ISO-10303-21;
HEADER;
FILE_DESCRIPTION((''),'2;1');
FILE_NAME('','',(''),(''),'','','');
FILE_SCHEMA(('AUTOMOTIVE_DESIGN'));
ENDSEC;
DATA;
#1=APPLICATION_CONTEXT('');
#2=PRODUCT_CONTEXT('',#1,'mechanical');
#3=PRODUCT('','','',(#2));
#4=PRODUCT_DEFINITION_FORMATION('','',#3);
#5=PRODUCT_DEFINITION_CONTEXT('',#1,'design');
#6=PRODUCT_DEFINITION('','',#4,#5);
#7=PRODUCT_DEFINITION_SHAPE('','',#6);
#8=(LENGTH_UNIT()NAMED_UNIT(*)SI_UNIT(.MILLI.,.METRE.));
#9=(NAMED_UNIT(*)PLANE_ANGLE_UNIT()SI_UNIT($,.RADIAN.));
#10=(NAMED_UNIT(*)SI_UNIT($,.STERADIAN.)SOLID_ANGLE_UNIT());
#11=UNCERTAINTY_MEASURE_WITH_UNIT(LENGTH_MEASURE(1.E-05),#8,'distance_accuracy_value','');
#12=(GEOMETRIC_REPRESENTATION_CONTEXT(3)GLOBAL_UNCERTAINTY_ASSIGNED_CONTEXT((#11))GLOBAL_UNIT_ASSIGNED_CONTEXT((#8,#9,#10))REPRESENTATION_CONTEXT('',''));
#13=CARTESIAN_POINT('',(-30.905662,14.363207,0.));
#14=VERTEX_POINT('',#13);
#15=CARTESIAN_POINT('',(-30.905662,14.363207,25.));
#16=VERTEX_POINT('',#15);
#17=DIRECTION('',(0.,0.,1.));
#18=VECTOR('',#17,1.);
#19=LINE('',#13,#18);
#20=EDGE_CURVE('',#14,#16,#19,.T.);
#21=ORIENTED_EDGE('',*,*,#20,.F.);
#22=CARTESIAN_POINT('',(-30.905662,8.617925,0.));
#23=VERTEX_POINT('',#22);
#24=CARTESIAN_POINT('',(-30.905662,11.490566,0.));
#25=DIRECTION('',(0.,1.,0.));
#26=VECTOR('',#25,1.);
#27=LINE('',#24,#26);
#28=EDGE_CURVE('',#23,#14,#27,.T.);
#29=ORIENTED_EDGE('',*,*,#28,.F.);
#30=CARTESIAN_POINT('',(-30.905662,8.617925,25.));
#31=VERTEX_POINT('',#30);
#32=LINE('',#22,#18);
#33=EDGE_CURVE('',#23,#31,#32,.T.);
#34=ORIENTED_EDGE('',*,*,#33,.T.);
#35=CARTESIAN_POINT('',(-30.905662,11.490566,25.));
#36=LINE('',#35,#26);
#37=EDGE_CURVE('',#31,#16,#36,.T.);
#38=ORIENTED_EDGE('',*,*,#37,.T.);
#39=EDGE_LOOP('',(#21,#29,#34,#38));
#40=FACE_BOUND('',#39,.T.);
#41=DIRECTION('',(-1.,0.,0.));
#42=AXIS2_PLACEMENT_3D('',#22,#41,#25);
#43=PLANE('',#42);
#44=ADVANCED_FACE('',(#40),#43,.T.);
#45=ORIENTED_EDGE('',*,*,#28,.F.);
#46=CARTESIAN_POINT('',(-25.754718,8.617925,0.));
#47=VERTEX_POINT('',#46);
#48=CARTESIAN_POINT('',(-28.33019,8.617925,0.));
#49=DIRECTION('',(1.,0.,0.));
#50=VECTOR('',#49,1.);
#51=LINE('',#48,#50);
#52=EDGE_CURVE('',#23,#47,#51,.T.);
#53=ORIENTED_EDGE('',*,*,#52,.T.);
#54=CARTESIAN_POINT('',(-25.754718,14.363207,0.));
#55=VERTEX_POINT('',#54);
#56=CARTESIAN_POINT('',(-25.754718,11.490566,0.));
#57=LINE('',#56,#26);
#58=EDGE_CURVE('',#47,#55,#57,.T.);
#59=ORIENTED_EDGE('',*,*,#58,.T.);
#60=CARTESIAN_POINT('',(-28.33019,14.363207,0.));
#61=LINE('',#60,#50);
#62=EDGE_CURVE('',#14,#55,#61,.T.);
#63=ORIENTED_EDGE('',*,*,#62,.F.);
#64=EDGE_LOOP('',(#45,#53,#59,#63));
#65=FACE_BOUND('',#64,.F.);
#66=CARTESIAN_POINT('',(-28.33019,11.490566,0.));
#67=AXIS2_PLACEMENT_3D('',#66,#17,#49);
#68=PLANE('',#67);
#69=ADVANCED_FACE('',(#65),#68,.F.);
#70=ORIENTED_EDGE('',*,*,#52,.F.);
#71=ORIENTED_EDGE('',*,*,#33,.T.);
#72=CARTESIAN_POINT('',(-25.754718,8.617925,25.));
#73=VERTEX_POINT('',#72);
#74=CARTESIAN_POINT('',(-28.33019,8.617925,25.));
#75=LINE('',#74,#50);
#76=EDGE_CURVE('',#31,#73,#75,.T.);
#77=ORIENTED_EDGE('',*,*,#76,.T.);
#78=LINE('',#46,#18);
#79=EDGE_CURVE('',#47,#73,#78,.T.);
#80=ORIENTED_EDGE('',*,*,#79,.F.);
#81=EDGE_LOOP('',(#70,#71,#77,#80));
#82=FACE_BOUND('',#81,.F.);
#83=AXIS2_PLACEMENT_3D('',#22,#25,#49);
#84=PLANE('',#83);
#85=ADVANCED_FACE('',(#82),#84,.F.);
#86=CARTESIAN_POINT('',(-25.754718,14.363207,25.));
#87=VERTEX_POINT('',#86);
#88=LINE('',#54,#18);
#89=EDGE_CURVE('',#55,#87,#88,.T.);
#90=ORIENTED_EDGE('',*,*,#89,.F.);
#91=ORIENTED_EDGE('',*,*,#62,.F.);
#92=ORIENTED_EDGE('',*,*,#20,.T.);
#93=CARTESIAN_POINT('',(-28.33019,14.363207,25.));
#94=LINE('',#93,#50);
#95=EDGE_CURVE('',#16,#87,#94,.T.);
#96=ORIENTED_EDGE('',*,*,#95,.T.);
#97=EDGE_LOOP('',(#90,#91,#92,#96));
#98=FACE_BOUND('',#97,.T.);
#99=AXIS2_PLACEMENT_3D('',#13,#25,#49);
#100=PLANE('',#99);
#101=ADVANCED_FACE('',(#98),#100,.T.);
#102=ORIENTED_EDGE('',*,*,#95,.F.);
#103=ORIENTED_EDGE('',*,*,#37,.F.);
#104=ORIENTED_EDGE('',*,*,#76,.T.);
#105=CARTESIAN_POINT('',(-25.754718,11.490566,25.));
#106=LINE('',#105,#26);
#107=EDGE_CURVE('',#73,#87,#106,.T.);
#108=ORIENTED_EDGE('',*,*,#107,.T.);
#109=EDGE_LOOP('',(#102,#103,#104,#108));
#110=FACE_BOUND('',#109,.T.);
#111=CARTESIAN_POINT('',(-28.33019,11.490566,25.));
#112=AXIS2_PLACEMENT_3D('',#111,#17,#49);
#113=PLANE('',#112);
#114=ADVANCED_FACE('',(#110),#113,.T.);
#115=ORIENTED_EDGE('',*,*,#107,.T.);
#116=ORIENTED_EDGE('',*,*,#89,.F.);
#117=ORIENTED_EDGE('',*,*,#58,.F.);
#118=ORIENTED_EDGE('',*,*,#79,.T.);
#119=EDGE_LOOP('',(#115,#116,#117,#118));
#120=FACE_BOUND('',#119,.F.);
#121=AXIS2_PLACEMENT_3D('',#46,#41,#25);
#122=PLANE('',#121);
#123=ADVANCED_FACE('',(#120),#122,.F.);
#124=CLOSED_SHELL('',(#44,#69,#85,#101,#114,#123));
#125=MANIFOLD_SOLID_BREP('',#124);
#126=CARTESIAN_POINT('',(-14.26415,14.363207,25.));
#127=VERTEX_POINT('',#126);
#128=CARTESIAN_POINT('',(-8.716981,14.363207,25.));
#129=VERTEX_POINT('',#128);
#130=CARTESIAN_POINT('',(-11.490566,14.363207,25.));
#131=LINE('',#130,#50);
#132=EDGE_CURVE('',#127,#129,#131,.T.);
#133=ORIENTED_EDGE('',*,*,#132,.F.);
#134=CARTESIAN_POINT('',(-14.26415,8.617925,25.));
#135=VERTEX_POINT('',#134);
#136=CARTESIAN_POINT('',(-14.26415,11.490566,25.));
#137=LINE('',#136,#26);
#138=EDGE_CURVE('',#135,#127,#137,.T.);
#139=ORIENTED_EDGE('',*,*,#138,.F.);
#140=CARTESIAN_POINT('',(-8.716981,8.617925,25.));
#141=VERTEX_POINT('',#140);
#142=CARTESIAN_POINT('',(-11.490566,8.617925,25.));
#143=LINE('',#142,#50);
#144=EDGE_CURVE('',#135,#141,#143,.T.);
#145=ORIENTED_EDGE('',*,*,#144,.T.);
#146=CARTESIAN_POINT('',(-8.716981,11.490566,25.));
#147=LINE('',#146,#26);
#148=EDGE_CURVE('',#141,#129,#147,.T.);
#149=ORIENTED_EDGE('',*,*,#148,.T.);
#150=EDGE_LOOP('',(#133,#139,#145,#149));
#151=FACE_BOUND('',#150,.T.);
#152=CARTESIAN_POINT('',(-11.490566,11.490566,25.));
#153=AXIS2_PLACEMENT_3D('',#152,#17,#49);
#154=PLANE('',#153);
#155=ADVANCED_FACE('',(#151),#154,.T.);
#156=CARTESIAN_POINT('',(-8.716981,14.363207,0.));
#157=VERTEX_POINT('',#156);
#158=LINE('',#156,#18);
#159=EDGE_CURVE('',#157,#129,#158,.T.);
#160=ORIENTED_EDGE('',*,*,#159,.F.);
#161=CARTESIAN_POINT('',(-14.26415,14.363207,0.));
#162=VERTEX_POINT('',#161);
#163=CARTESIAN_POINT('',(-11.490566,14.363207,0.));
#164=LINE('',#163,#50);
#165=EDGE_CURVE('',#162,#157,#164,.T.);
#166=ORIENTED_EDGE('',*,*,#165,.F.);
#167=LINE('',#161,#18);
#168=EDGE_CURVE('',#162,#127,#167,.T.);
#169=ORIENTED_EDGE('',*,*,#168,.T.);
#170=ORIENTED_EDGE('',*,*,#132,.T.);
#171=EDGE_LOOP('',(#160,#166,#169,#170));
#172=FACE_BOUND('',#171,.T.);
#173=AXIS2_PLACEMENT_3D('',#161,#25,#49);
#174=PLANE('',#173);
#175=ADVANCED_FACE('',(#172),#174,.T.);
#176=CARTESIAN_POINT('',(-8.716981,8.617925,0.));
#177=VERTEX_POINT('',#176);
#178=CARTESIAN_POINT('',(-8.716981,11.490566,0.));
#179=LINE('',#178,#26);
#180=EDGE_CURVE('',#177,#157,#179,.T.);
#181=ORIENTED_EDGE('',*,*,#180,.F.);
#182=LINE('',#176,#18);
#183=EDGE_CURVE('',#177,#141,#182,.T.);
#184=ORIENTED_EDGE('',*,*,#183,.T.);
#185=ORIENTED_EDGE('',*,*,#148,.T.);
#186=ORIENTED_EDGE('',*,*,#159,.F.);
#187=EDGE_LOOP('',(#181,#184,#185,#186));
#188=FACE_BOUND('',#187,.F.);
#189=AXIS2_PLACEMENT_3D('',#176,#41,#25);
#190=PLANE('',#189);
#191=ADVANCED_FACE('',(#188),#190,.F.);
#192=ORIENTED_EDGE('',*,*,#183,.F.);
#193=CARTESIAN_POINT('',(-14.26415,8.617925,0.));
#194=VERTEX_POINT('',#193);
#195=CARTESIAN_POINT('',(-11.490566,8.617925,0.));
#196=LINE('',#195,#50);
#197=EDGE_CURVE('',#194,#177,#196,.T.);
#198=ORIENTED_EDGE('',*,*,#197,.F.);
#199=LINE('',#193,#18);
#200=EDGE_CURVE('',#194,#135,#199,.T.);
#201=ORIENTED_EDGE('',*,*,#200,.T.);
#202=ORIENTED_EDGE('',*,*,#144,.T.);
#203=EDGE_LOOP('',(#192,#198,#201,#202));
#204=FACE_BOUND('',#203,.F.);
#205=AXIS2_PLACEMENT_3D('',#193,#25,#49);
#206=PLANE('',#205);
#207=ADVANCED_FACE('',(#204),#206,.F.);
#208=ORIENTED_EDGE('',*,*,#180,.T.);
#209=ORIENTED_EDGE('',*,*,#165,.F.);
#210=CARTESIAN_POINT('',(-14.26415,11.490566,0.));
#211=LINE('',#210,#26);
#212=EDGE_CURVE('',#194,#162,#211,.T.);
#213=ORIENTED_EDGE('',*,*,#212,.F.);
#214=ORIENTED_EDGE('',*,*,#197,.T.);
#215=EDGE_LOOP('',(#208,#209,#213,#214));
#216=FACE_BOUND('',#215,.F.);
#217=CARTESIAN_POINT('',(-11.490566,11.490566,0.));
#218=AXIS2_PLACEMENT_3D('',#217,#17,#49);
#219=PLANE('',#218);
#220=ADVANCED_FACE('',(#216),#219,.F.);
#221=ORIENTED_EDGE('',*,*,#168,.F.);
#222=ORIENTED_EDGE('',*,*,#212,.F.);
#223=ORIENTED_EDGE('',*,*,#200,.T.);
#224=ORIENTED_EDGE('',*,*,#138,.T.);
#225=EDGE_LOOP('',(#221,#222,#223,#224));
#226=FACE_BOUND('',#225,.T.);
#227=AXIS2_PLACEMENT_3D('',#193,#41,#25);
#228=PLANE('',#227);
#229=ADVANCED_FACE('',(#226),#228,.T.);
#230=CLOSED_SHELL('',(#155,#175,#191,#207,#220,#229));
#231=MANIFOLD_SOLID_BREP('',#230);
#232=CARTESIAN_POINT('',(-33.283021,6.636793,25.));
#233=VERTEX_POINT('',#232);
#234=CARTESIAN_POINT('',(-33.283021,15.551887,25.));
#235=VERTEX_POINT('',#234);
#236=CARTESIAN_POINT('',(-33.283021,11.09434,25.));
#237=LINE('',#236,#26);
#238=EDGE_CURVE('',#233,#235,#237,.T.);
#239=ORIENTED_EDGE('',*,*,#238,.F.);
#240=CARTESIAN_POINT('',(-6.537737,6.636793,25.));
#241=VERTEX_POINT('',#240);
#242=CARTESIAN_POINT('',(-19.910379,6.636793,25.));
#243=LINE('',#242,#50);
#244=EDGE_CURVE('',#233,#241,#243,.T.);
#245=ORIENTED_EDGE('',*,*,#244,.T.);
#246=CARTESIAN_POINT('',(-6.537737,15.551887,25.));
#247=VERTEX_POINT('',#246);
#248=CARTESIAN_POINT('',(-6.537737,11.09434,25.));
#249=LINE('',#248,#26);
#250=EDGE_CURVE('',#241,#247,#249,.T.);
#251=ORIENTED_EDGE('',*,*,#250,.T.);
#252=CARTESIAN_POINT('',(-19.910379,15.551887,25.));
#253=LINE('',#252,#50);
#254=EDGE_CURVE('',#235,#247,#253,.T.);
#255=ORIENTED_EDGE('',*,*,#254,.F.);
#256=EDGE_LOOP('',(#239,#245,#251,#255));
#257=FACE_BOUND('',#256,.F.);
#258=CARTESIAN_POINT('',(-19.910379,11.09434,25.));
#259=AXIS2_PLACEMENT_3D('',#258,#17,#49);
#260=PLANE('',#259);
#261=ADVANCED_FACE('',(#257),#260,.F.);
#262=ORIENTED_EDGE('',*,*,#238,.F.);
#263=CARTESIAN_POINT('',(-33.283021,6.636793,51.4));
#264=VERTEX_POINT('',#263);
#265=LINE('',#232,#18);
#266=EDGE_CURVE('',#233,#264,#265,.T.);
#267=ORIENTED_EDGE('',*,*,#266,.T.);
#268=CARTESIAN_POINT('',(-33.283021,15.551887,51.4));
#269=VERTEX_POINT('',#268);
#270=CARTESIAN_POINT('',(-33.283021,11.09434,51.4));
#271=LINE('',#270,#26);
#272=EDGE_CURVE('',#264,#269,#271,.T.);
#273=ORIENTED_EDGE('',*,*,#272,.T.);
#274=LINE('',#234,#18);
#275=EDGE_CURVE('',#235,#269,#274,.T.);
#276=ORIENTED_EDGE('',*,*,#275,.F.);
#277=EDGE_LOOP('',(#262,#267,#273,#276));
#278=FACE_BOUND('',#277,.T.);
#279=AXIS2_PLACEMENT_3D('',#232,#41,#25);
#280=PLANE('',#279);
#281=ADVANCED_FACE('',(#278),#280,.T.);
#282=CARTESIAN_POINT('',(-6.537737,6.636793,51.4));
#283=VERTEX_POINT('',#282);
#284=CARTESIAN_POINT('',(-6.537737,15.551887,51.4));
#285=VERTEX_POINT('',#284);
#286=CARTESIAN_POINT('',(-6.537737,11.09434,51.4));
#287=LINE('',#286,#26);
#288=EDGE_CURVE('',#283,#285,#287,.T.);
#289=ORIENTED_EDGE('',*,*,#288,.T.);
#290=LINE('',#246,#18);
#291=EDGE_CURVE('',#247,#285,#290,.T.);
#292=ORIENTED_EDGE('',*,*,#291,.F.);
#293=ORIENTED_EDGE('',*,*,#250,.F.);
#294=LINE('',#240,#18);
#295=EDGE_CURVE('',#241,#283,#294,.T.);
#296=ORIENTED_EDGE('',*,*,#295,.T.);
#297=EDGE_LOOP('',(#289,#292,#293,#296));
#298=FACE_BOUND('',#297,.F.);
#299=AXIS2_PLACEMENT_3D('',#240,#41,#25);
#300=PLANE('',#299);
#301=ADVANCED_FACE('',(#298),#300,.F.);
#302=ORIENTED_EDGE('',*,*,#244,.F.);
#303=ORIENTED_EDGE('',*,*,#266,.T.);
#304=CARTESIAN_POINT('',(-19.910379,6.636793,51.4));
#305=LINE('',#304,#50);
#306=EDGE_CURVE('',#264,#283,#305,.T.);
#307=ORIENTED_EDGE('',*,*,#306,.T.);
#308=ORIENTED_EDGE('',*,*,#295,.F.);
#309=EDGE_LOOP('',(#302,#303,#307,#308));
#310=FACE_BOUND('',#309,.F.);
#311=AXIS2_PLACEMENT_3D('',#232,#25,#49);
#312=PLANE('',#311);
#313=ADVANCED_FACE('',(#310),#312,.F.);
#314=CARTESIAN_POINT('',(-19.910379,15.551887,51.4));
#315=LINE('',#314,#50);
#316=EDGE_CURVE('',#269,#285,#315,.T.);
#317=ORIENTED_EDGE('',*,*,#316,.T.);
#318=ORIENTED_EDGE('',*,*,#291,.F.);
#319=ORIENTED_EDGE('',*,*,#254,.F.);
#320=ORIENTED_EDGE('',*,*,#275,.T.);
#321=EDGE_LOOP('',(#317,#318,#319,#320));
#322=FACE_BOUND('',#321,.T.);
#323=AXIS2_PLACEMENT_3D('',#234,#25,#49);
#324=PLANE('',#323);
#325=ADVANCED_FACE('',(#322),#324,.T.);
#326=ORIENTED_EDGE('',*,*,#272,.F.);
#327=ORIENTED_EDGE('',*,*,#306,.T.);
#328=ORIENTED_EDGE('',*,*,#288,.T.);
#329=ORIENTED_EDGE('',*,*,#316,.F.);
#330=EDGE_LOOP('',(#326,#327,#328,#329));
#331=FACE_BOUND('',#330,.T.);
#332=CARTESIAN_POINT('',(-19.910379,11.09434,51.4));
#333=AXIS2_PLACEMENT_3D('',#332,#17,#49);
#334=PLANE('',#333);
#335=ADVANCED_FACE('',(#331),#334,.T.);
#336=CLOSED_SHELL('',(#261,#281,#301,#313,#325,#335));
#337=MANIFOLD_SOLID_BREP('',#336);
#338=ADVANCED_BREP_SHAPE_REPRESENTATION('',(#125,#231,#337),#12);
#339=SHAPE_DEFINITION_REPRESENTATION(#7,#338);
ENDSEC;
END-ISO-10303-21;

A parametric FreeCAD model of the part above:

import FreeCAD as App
import Part
import Sketcher

V = App.Vector
Q = App.Units.Quantity

doc = App.newDocument("Part")
body = doc.addObject("PartDesign::Body", "Body")
body.AllowCompound = True

sketch1 = body.newObject("Sketcher::SketchObject", "Sketch")
sketch1.AttachmentSupport = (doc.getObject("XY_Plane"), [""])
sketch1.MapMode = "FlatFace"
sketch1.addGeometry([
    Part.LineSegment(V(-30.905662, 14.363207, 0), V(-30.905662, 8.617925, 0)),
    Part.LineSegment(V(-30.905662, 8.617925, 0), V(-25.754718, 8.617925, 0)),
    Part.LineSegment(V(-25.754718, 8.617925, 0), V(-25.754718, 14.363207, 0)),
    Part.LineSegment(V(-25.754718, 14.363207, 0), V(-30.905662, 14.363207, 0)),
    Part.LineSegment(V(-14.26415, 14.363207, 0), V(-14.26415, 8.617925, 0)),
    Part.LineSegment(V(-14.26415, 8.617925, 0), V(-8.716981, 8.617925, 0)),
    Part.LineSegment(V(-8.716981, 8.617925, 0), V(-8.716981, 14.363207, 0)),
    Part.LineSegment(V(-8.716981, 14.363207, 0), V(-14.26415, 14.363207, 0)),
], False)
sketch1.addConstraint([
    Sketcher.Constraint("Coincident", 0, 2, 1, 1),
    Sketcher.Constraint("Coincident", 1, 2, 2, 1),
    Sketcher.Constraint("Coincident", 2, 2, 3, 1),
    Sketcher.Constraint("Coincident", 3, 2, 0, 1),
    Sketcher.Constraint("Coincident", 4, 2, 5, 1),
    Sketcher.Constraint("Coincident", 5, 2, 6, 1),
    Sketcher.Constraint("Coincident", 6, 2, 7, 1),
    Sketcher.Constraint("Coincident", 7, 2, 4, 1),
    Sketcher.Constraint("Vertical", 0),
    Sketcher.Constraint("Horizontal", 1),
    Sketcher.Constraint("Vertical", 2),
    Sketcher.Constraint("Horizontal", 3),
    Sketcher.Constraint("Vertical", 4),
    Sketcher.Constraint("Horizontal", 5),
    Sketcher.Constraint("Vertical", 6),
    Sketcher.Constraint("Horizontal", 7),
    Sketcher.Constraint("Horizontal", 1, 2, 4, 2),
    Sketcher.Constraint("Horizontal", 3, 2, 6, 2),
    Sketcher.Constraint("DistanceX", 5, 1, 5, 2, Q("5.547169 mm")),
    Sketcher.Constraint("DistanceX", 1, 1, 1, 2, Q("5.150944 mm")),
    Sketcher.Constraint("DistanceY", 0, 2, 0, 1, Q("5.745283 mm")),
    Sketcher.Constraint("DistanceX", 0, 2, -1, 1, Q("30.905662 mm")),
    Sketcher.Constraint("DistanceX", 4, 2, -1, 1, Q("14.26415 mm")),
    Sketcher.Constraint("DistanceY", -1, 1, 0, 2, Q("8.617925 mm")),
])
pad1 = body.newObject("PartDesign::Pad", "Pad")
pad1.Profile = sketch1
pad1.Length = 25
body2 = doc.addObject("PartDesign::Body", "Body001")

sketch2 = body2.newObject("Sketcher::SketchObject", "Sketch001")
sketch2.AttachmentSupport = (doc.getObject("XY_Plane001"), [""])
sketch2.MapMode = "FlatFace"
sketch2.AttachmentOffset = App.Placement(V(0, 0, 25), App.Rotation())
sketch2.addGeometry([
    Part.LineSegment(V(-33.283021, 15.551887, 0), V(-33.283021, 6.636793, 0)),
    Part.LineSegment(V(-33.283021, 6.636793, 0), V(-6.537737, 6.636793, 0)),
    Part.LineSegment(V(-6.537737, 6.636793, 0), V(-6.537737, 15.551887, 0)),
    Part.LineSegment(V(-6.537737, 15.551887, 0), V(-33.283021, 15.551887, 0)),
], False)
sketch2.addConstraint([
    Sketcher.Constraint("Coincident", 0, 2, 1, 1),
    Sketcher.Constraint("Coincident", 1, 2, 2, 1),
    Sketcher.Constraint("Coincident", 2, 2, 3, 1),
    Sketcher.Constraint("Coincident", 3, 2, 0, 1),
    Sketcher.Constraint("Vertical", 0),
    Sketcher.Constraint("Horizontal", 1),
    Sketcher.Constraint("Vertical", 2),
    Sketcher.Constraint("Horizontal", 3),
    Sketcher.Constraint("DistanceX", 1, 1, 1, 2, Q("26.745285 mm")),
    Sketcher.Constraint("DistanceY", 0, 2, 0, 1, Q("8.915094 mm")),
    Sketcher.Constraint("DistanceX", 0, 2, -1, 1, Q("33.283021 mm")),
    Sketcher.Constraint("DistanceY", -1, 1, 0, 2, Q("6.636793 mm")),
])
pad2 = body2.newObject("PartDesign::Pad", "Pad001")
pad2.Profile = sketch2
pad2.Length = 26.4

doc.recompute()
